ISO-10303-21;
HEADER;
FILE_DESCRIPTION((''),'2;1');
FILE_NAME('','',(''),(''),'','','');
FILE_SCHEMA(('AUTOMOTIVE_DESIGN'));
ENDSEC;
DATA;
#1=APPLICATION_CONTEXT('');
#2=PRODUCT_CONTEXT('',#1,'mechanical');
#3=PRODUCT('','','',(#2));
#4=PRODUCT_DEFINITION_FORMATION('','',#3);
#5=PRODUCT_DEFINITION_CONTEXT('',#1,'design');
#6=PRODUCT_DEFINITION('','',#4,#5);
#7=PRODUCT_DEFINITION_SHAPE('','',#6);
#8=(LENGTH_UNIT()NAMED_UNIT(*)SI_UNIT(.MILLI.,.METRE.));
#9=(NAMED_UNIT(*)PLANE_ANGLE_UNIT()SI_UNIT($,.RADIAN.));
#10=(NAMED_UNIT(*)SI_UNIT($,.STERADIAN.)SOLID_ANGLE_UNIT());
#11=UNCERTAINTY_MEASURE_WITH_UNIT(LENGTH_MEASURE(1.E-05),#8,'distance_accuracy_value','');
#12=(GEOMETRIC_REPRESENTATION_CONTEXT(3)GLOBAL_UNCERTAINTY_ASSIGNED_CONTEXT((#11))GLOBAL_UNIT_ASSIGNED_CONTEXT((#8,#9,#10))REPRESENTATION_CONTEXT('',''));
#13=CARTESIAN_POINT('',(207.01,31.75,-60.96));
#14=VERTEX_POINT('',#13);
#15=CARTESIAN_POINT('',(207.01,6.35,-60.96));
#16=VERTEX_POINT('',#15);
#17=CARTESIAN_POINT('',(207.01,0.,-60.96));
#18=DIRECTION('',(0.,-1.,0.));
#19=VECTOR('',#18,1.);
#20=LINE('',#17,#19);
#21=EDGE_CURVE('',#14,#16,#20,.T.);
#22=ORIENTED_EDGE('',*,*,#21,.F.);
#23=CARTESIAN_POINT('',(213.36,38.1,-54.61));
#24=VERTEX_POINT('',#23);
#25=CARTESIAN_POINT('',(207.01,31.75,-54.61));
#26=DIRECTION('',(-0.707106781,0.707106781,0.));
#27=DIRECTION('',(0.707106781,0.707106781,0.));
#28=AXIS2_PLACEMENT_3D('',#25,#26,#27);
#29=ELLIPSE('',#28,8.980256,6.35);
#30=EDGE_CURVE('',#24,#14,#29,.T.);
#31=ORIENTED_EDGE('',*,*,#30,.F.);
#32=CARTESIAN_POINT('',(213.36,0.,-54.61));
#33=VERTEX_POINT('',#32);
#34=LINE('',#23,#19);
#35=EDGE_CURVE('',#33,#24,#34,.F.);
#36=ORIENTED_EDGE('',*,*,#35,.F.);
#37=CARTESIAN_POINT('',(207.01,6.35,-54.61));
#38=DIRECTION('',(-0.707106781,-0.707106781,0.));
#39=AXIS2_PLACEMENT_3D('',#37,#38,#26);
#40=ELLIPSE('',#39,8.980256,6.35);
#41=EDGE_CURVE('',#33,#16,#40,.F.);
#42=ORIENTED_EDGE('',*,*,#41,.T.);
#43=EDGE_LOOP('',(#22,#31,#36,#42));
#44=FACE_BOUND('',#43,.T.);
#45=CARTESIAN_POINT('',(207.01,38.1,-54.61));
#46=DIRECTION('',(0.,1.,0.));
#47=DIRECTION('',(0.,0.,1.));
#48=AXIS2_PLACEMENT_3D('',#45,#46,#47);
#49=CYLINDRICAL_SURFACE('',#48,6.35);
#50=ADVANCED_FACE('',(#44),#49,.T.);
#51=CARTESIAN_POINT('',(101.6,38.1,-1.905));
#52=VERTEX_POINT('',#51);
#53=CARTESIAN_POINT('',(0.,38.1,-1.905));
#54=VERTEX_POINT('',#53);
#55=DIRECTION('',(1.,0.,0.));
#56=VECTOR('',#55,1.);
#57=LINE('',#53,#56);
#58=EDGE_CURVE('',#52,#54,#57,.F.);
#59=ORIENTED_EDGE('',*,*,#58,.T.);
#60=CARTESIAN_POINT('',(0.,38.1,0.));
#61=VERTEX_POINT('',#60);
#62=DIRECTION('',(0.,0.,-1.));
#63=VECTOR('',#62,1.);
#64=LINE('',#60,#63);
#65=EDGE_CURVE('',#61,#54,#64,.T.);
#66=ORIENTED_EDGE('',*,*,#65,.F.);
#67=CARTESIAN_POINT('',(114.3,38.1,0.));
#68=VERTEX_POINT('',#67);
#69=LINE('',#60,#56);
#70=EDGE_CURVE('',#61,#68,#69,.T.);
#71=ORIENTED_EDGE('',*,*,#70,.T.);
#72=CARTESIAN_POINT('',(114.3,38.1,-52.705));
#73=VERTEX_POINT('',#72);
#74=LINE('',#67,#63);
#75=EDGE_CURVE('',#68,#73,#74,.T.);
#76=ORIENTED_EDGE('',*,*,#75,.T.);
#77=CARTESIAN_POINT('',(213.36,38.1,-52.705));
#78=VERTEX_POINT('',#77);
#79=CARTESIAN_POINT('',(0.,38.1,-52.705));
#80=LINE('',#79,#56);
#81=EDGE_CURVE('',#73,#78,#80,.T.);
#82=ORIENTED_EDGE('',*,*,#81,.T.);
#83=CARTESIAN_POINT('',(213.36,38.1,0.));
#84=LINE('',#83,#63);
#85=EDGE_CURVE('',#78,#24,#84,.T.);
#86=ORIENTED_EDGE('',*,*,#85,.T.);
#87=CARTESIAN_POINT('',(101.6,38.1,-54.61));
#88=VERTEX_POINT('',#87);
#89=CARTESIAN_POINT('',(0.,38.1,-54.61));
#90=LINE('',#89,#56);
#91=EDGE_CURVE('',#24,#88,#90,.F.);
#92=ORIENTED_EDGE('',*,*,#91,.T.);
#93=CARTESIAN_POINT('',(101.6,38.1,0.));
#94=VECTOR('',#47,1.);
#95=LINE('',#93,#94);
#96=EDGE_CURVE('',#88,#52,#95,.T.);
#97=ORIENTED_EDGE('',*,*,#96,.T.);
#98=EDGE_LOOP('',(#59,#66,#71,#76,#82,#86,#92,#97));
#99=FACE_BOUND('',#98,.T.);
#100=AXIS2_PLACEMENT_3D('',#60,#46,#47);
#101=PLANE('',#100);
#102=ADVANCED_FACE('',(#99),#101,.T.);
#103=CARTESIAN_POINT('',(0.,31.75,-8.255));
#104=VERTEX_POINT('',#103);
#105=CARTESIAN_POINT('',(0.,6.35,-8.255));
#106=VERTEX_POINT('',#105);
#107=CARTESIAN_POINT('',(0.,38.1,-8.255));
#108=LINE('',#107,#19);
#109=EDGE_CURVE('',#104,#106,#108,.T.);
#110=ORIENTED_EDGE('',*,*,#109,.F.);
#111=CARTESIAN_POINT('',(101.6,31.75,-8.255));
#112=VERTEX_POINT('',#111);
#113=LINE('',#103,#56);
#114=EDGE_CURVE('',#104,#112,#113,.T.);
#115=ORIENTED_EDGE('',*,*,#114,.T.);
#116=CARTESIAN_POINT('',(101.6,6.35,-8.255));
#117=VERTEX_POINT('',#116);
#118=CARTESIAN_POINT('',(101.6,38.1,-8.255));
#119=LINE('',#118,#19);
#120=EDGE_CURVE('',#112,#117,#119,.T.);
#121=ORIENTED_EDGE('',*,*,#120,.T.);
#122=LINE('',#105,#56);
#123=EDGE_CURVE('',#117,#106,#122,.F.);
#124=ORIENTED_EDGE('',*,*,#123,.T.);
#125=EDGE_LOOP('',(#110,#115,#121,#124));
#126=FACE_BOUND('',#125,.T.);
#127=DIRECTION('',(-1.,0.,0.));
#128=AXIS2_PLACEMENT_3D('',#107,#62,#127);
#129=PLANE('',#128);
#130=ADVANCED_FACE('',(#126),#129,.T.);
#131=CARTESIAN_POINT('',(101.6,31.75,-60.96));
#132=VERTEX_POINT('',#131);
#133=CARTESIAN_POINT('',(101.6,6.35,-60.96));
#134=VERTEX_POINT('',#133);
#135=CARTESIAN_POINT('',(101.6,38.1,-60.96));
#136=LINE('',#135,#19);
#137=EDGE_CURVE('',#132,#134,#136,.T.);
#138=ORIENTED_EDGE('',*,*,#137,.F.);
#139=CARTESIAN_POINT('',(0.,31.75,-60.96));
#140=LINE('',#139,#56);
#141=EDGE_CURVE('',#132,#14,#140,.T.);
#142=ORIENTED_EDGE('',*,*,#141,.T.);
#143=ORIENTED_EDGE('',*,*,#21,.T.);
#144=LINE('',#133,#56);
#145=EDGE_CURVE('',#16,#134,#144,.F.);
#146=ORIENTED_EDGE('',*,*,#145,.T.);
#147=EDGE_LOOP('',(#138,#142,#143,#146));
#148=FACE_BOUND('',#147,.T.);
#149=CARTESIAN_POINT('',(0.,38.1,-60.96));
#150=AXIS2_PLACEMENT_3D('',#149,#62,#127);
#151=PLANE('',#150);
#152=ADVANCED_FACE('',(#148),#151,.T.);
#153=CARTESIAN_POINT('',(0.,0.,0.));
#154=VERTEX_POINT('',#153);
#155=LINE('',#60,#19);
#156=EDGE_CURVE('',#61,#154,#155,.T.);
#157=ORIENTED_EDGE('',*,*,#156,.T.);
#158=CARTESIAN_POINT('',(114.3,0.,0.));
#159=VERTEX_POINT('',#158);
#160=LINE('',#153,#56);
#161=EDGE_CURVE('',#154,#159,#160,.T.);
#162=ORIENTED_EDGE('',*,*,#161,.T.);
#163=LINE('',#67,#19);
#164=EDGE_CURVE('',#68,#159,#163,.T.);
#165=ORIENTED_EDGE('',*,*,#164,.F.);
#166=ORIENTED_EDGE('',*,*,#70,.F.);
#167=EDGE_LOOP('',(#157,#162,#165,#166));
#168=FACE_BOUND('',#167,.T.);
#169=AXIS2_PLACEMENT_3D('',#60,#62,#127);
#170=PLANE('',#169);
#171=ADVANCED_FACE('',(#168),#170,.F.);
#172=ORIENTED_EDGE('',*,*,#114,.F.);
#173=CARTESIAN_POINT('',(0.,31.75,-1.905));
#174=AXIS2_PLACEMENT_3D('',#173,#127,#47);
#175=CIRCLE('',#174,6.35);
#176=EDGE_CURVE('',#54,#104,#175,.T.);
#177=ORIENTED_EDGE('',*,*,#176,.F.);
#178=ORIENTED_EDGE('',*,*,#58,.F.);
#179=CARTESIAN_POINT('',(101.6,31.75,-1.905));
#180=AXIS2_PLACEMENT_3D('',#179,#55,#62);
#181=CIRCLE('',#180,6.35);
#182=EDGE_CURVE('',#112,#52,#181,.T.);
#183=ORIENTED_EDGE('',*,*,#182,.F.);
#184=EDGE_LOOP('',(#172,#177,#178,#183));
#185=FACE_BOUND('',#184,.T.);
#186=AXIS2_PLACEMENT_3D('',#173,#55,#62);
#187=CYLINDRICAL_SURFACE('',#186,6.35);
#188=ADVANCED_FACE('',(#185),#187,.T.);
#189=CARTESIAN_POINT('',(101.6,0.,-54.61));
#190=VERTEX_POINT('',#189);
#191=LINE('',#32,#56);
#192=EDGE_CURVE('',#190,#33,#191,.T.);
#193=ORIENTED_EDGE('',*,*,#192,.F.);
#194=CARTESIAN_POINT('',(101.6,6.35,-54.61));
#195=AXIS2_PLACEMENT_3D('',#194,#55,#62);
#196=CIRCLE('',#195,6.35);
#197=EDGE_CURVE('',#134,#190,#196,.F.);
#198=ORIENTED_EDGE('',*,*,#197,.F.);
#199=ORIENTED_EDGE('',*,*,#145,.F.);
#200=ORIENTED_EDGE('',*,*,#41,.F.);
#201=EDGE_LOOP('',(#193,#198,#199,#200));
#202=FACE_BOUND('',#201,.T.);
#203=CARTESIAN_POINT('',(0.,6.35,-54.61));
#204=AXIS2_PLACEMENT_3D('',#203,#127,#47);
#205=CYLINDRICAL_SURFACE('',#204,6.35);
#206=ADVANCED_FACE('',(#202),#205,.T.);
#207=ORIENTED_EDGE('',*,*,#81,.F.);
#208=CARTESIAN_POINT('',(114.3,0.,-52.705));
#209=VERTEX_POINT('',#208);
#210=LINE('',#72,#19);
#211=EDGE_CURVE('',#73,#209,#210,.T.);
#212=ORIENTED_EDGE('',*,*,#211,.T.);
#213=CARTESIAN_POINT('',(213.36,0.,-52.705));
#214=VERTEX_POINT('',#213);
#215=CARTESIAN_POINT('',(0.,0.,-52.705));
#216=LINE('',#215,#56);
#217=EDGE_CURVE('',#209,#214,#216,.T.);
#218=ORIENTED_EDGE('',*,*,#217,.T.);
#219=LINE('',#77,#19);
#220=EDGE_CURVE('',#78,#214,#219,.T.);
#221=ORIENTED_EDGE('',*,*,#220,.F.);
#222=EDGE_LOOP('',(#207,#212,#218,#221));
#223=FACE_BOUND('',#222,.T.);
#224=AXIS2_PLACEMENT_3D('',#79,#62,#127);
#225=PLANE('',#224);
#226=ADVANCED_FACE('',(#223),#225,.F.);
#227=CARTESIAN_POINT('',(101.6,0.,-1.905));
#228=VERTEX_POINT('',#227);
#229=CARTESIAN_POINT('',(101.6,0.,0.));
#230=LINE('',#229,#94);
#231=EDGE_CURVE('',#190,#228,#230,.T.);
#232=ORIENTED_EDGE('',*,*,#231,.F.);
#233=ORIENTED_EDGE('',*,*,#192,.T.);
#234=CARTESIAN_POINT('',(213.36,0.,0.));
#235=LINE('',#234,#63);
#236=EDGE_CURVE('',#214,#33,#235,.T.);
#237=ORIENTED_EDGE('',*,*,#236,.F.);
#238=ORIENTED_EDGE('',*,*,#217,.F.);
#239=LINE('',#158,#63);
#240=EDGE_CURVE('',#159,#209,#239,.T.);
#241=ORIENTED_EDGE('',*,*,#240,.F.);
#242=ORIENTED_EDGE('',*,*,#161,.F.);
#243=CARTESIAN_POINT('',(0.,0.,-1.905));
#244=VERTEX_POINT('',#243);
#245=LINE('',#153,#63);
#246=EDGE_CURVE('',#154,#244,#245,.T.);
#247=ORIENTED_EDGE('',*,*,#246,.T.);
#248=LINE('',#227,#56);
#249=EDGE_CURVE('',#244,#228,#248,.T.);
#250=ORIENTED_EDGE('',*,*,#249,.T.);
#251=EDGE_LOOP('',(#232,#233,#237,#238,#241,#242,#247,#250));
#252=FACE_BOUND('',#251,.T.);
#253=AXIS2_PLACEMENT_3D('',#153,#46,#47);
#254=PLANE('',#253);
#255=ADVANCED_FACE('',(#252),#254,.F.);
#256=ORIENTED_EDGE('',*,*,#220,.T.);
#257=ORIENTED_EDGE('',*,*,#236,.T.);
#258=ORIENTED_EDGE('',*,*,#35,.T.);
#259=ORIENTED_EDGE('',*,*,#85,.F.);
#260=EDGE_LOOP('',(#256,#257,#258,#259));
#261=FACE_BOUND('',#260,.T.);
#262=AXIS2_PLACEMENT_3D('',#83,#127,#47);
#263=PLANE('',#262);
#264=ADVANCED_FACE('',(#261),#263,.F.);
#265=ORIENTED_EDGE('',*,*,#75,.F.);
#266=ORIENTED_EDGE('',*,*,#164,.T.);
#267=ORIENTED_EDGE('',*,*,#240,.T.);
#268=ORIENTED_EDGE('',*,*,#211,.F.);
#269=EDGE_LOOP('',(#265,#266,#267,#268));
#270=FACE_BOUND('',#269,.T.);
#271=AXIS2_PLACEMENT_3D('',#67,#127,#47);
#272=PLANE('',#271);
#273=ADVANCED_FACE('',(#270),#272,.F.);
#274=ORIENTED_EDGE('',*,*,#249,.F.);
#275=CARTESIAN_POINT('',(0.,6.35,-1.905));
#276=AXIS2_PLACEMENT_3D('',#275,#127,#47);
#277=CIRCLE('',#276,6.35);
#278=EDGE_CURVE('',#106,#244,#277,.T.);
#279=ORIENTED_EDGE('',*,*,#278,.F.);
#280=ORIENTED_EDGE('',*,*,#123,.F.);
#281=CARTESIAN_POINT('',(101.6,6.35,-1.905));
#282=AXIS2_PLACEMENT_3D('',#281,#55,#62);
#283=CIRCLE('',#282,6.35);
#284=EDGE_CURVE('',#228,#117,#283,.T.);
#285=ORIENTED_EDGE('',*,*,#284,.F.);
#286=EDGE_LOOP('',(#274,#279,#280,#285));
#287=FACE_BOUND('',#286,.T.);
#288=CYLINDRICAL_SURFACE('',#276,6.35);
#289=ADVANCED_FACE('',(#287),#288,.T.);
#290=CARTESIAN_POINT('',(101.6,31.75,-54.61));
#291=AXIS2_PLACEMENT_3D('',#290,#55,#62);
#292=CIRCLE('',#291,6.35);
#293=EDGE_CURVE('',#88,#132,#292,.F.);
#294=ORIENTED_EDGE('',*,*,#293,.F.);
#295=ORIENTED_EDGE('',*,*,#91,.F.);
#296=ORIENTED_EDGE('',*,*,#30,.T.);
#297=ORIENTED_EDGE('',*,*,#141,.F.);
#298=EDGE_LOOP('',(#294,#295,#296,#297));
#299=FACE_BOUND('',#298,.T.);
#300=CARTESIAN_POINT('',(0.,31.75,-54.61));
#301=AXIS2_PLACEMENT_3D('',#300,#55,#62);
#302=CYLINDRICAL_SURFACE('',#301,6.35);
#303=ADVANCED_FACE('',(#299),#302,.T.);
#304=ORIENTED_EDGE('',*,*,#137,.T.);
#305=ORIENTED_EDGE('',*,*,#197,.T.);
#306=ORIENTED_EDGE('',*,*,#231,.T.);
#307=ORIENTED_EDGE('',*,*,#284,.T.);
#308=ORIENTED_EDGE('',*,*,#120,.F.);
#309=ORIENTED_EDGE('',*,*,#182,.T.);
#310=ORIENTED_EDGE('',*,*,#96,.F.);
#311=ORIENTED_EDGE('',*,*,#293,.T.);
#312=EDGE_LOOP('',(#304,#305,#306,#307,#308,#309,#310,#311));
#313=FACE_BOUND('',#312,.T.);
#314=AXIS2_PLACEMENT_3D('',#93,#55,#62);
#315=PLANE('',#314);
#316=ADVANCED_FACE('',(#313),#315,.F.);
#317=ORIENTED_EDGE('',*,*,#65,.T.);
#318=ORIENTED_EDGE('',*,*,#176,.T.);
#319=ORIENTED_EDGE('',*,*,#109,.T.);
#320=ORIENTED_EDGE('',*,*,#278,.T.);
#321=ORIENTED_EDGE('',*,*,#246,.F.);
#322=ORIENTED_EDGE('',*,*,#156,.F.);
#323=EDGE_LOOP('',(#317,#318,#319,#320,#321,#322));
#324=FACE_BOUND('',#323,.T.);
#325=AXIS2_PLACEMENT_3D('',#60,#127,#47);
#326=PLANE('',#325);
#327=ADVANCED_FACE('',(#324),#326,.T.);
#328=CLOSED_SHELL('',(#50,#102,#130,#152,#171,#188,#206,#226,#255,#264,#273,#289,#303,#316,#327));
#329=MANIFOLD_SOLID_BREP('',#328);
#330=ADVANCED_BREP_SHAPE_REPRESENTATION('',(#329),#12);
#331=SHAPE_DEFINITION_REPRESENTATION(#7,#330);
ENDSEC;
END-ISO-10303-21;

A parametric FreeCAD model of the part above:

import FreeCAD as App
import Part
import Sketcher
Q = App.Units.Quantity


def edges_at(feature, points):
    """Names of the edges that pass closest to the given points."""
    edges = feature.Shape.Edges
    near = lambda p: min(range(len(edges)), key=lambda i: edges[i].distToShape(Part.Vertex(*p))[0])
    return sorted({f"Edge{near(p) + 1}" for p in points})


def add_polygon(sketch, points):
    """Adds a closed chain of lines whose ends are joined by coincident constraints."""
    first, n = sketch.GeometryCount, len(points)
    for a, b in zip(points, points[1:] + points[:1]):
        sketch.addGeometry(Part.LineSegment(App.Vector(*a, 0), App.Vector(*b, 0)), False)
    for i in range(n):
        sketch.addConstraint(Sketcher.Constraint("Coincident", first + i, 2, first + (i + 1) % n, 1))

doc = App.newDocument("Part")
params = doc.addObject("Spreadsheet::Sheet", "Params")
for row, (alias, value) in enumerate([
    ("sketch1_width", "4 in"),
    ("sketch1_width2", "4.5 in"),
    ("sketch1_width3", "3.9 in"),
    ("sketch1_height", "0.325 in"),
    ("pad1_length", "1.5 in"),
    ("fillet_radius", "0.25 in"),
], start=1):
    params.set(f"A{row}", alias)
    params.set(f"B{row}", "=" + value)
    params.setAlias(f"B{row}", alias)

body = doc.addObject("PartDesign::Body", "Body")

# Sketch on XZ plane
sketch1 = body.newObject("Sketcher::SketchObject", "Sketch")
sketch1.AttachmentSupport = (doc.getObject("XZ_Plane"), [""])
sketch1.MapMode = "FlatFace"
add_polygon(sketch1, [(0, -8), (0, 0), (114, 0), (114, -53), (213, -53), (213, -61), (102, -61), (102, -8)])  # lines 0-7
sketch1.addConstraint([
    Sketcher.Constraint("Vertical", 0),
    Sketcher.Constraint("Horizontal", 1),
    Sketcher.Constraint("Vertical", 2),
    Sketcher.Constraint("Horizontal", 3),
    Sketcher.Constraint("Vertical", 4),
    Sketcher.Constraint("Horizontal", 5),
    Sketcher.Constraint("Vertical", 6),
    Sketcher.Constraint("Horizontal", 7),
    Sketcher.Constraint("Coincident", 0, 2, -1, 1),
    Sketcher.Constraint("Equal", 0, 4),
    Sketcher.Constraint("DistanceX", 7, 2, 7, 1, Q("4 in")),
    Sketcher.Constraint("DistanceX", 1, 1, 1, 2, Q("4.5 in")),
    Sketcher.Constraint("DistanceX", 3, 1, 3, 2, Q("3.9 in")),
    Sketcher.Constraint("DistanceY", 4, 2, -1, 1, Q("2.4 in")),
    Sketcher.Constraint("DistanceY", 0, 1, 0, 2, Q("0.325 in")),
])
sketch1.setExpression("Constraints[18]", "Params.sketch1_width")
sketch1.setExpression("Constraints[19]", "Params.sketch1_width2")
sketch1.setExpression("Constraints[20]", "Params.sketch1_width3")
sketch1.setExpression("Constraints[22]", "Params.sketch1_height")
pad1 = body.newObject("PartDesign::Pad", "Pad")
pad1.Profile = sketch1
pad1.setExpression("Length", "Params.pad1_length")
pad1.Reversed = True
doc.recompute()

fillet = body.newObject("PartDesign::Fillet", "Fillet")
fillet.Base = (pad1, edges_at(pad1, [
    (50.8, 0, -8.255),
    (157.48, 0, -60.96),
    (213.36, 19.05, -60.96),
    (157.48, 38.1, -60.96),
    (50.8, 38.1, -8.255),
]))
fillet.setExpression("Radius", "Params.fillet_radius")

doc.recompute()
